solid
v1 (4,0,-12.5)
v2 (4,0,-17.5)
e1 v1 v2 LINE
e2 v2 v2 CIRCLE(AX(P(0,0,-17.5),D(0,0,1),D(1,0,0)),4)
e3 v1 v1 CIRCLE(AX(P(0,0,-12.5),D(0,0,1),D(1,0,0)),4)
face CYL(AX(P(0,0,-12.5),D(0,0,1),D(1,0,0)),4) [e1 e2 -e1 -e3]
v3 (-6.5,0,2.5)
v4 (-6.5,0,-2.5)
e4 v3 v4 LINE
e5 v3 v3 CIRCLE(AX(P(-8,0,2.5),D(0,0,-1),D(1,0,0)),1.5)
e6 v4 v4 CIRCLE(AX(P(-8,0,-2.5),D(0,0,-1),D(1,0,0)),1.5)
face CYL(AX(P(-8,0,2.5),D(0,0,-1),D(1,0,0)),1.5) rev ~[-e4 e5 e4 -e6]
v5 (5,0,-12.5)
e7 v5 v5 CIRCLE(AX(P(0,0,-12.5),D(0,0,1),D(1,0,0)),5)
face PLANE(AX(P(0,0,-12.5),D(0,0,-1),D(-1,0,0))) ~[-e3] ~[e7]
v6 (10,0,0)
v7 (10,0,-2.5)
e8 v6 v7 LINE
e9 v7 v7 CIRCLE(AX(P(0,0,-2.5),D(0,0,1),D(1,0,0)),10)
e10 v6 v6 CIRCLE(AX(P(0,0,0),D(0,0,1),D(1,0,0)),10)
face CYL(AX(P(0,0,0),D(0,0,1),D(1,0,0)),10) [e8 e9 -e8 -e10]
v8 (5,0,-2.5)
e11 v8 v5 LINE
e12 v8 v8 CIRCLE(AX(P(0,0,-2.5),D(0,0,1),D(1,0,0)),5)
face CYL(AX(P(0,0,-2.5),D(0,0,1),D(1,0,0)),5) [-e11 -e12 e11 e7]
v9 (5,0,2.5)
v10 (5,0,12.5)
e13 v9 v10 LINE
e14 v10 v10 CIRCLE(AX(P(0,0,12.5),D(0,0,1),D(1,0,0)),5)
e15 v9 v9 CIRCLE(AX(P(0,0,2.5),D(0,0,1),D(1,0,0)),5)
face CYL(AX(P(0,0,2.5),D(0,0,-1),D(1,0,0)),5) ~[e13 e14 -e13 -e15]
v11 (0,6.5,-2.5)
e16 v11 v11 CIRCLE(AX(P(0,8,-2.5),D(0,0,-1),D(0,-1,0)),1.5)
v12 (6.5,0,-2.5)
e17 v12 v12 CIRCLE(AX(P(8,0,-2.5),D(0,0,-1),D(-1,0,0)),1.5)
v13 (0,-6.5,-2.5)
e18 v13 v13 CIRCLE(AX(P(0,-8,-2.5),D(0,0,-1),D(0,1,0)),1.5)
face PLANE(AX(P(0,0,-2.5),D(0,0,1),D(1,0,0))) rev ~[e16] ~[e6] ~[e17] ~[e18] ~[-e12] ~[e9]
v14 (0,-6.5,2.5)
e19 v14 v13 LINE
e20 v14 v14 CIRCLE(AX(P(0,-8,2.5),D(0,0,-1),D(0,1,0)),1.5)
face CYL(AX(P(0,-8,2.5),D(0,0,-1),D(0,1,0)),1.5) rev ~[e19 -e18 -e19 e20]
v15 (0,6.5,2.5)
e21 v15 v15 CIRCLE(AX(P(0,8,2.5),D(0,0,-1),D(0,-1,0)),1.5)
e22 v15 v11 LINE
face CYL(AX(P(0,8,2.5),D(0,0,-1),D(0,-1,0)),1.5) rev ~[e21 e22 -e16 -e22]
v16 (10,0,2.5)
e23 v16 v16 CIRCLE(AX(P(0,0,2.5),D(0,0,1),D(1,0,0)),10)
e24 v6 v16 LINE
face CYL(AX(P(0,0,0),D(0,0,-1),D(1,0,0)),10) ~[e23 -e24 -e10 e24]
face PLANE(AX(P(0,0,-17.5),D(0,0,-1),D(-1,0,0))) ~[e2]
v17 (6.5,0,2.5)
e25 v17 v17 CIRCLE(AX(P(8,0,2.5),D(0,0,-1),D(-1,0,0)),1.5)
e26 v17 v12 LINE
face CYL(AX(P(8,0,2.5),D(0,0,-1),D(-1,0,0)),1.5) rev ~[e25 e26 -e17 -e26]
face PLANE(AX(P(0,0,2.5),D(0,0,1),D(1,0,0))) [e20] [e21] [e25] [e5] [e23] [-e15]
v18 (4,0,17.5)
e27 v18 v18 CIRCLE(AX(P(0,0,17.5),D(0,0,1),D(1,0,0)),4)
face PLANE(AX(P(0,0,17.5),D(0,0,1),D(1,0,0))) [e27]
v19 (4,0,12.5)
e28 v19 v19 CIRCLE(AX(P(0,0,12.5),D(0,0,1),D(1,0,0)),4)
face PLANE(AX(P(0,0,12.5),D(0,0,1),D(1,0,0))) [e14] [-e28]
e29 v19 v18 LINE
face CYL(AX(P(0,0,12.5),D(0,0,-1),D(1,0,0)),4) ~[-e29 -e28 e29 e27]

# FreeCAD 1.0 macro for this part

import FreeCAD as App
import Part
import Sketcher

V = App.Vector

doc = App.newDocument("Part")
params = doc.addObject("Spreadsheet::Sheet", "Params")
for row, (alias, value) in enumerate([
    ("sketch1_diameter", "20 mm"),
    ("pad1_length", "5 mm"),
    ("sketch2_diameter", "10 mm"),
    ("pad2_length", "10 mm"),
    ("sketch3_diameter", "3 mm"),
    ("hole_diameter", "3 mm"),
    ("sketch4_diameter", "8 mm"),
    ("pad3_length", "5 mm"),
], start=1):
    params.set(f"A{row}", alias)
    params.set(f"B{row}", "=" + value)
    params.setAlias(f"B{row}", alias)

body = doc.addObject("PartDesign::Body", "Body")

sketch1 = doc.addObject("Sketcher::SketchObject", "Sketch")
body.addObject(sketch1)
sketch1.AttachmentSupport = (doc.XY_Plane, [""])
sketch1.MapMode = "FlatFace"
sketch1.addGeometry(Part.Circle(V(0, 0, 0), V(0, 0, 1), 10), False)
sketch1.addConstraint(Sketcher.Constraint("Coincident", 0, 3, -1, 1))
sketch1.addConstraint(Sketcher.Constraint("Diameter", 0, 20.0))
sketch1.setExpression("Constraints[1]", "Params.sketch1_diameter")
pad1 = doc.addObject("PartDesign::Pad", "Pad")
body.addObject(pad1)
pad1.Profile = sketch1
pad1.setExpression("Length", "Params.pad1_length")
pad1.Midplane = True

sketch2 = doc.addObject("Sketcher::SketchObject", "Sketch001")
body.addObject(sketch2)
sketch2.AttachmentSupport = (doc.XY_Plane, [""])
sketch2.MapMode = "FlatFace"
sketch2.AttachmentOffset = App.Placement(V(0, 0, 2.5), App.Rotation())
sketch2.addGeometry(Part.Circle(V(0, 0, 0), V(0, 0, 1), 5), False)
sketch2.addConstraint(Sketcher.Constraint("Coincident", 0, 3, -1, 1))
sketch2.addConstraint(Sketcher.Constraint("Diameter", 0, 10.0))
sketch2.setExpression("Constraints[1]", "Params.sketch2_diameter")
pad2 = doc.addObject("PartDesign::Pad", "Pad001")
body.addObject(pad2)
pad2.Profile = sketch2
pad2.setExpression("Length", "Params.pad2_length")

sketch3 = doc.addObject("Sketcher::SketchObject", "Sketch002")
body.addObject(sketch3)
sketch3.AttachmentSupport = (doc.XY_Plane, [""])
sketch3.MapMode = "FlatFace"
sketch3.AttachmentOffset = App.Placement(V(0, 0, 2.5), App.Rotation())
sketch3.addGeometry(Part.Circle(V(0, 8, 0), V(0, 0, 1), 1.5), False)
sketch3.addConstraint(Sketcher.Constraint("PointOnObject", 0, 3, -2))
sketch3.addConstraint(Sketcher.Constraint("Diameter", 0, 3.0))
sketch3.addConstraint(Sketcher.Constraint("DistanceY", -1, 1, 0, 3, 8.0))
sketch3.setExpression("Constraints[1]", "Params.sketch3_diameter")
doc.recompute()
hole = doc.addObject("PartDesign::Hole", "Hole")
body.addObject(hole)
hole.Profile = sketch3
hole.ThreadType = "None"
hole.setExpression("Diameter", "Params.hole_diameter")
hole.DepthType = "ThroughAll"
doc.recompute()

polarpattern = doc.addObject("PartDesign::PolarPattern", "PolarPattern")
body.addObject(polarpattern)
polarpattern.Originals = [hole]
polarpattern.Axis = (doc.Z_Axis, [""])
polarpattern.Angle = 360
polarpattern.Occurrences = 4
body.Tip = polarpattern

sketch4 = doc.addObject("Sketcher::SketchObject", "Sketch003")
body.addObject(sketch4)
sketch4.AttachmentSupport = (doc.XY_Plane, [""])
sketch4.MapMode = "FlatFace"
sketch4.AttachmentOffset = App.Placement(V(0, 0, 12.5), App.Rotation())
sketch4.addGeometry(Part.Circle(V(0, 0, 0), V(0, 0, 1), 4), False)
sketch4.addConstraint(Sketcher.Constraint("Coincident", 0, 3, -1, 1))
sketch4.addConstraint(Sketcher.Constraint("Diameter", 0, 8.0))
sketch4.setExpression("Constraints[1]", "Params.sketch4_diameter")
pad3 = doc.addObject("PartDesign::Pad", "Pad002")
body.addObject(pad3)
pad3.Profile = sketch4
pad3.setExpression("Length", "Params.pad3_length")
doc.recompute()

mirrored = doc.addObject("PartDesign::Mirrored", "Mirrored")
body.addObject(mirrored)
mirrored.Originals = [pad2, pad3]
mirrored.MirrorPlane = (doc.XY_Plane, [""])
body.Tip = mirrored

doc.recompute()
